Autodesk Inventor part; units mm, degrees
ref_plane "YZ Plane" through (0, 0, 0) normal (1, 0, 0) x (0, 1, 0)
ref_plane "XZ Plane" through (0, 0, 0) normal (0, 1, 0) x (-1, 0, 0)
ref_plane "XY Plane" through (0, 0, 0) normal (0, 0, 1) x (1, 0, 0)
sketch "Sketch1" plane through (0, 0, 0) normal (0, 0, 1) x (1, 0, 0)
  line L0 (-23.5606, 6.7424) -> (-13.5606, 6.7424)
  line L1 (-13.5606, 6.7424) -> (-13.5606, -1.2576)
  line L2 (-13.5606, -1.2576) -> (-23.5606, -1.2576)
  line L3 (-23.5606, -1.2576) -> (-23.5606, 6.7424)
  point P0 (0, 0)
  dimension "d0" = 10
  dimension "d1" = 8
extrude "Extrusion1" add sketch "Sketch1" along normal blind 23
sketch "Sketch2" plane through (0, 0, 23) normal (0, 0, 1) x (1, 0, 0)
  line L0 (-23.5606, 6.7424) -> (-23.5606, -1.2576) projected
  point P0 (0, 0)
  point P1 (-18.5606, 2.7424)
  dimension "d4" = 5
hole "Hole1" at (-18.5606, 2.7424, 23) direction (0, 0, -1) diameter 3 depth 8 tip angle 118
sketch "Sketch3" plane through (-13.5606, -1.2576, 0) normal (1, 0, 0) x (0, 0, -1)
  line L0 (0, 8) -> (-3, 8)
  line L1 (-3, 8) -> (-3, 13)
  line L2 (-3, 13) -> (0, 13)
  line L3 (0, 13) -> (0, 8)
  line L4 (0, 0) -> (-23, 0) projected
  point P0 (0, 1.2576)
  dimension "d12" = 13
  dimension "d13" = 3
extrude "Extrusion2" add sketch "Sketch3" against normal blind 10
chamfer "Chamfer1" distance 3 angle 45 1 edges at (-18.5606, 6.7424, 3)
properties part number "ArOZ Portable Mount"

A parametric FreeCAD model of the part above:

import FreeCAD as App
import Part
import Sketcher
from FreeCAD import Vector
Q = App.Units.Quantity


def edges_at(feature, points):
    """Names of the edges that pass closest to the given points."""
    edges = feature.Shape.Edges
    near = lambda p: min(range(len(edges)), key=lambda i: edges[i].distToShape(Part.Vertex(*p))[0])
    return sorted({f"Edge{near(p) + 1}" for p in points})

doc = App.newDocument("Part")
body = doc.addObject("PartDesign::Body", "Body")

# Sketch on XY plane
sketch1 = body.newObject("Sketcher::SketchObject", "Sketch")
sketch1.AttachmentSupport = (doc.getObject("XY_Plane"), [""])
sketch1.MapMode = "FlatFace"
sketch1.addGeometry(Part.LineSegment(Vector(-14, 7, 0), Vector(-24, 7, 0)), False)
sketch1.addGeometry(Part.LineSegment(Vector(-24, 7, 0), Vector(-24, -1, 0)), False)
sketch1.addGeometry(Part.LineSegment(Vector(-24, -1, 0), Vector(-14, -1, 0)), False)
sketch1.addGeometry(Part.LineSegment(Vector(-14, -1, 0), Vector(-14, 7, 0)), False)
sketch1.addConstraint(Sketcher.Constraint("Coincident", 0, 2, 1, 1))
sketch1.addConstraint(Sketcher.Constraint("Coincident", 1, 2, 2, 1))
sketch1.addConstraint(Sketcher.Constraint("Coincident", 2, 2, 3, 1))
sketch1.addConstraint(Sketcher.Constraint("Coincident", 3, 2, 0, 1))
sketch1.addConstraint(Sketcher.Constraint("Horizontal", 0))
sketch1.addConstraint(Sketcher.Constraint("Vertical", 1))
sketch1.addConstraint(Sketcher.Constraint("Horizontal", 2))
sketch1.addConstraint(Sketcher.Constraint("Vertical", 3))
sketch1.addConstraint(Sketcher.Constraint("DistanceX", 0, 2, 0, 1, Q("10 mm")))
sketch1.addConstraint(Sketcher.Constraint("DistanceY", 1, 2, 1, 1, Q("8 mm")))
sketch1.addConstraint(Sketcher.Constraint("DistanceX", 0, 2, -1, 1, Q("23.5606 mm")))
sketch1.addConstraint(Sketcher.Constraint("DistanceY", -1, 1, 0, 2, Q("6.7424 mm")))
pad1 = body.newObject("PartDesign::Pad", "Pad")
pad1.Profile = sketch1
pad1.Length = 23

# Sketch on XY plane
sketch2 = body.newObject("Sketcher::SketchObject", "Sketch001")
sketch2.AttachmentSupport = (doc.getObject("XY_Plane"), [""])
sketch2.MapMode = "FlatFace"
sketch2.AttachmentOffset = App.Placement(Vector(0, 0, 23), App.Rotation())
sketch2.addGeometry(Part.Circle(Vector(-18.6, 2.7, 0), Vector(0, 0, 1), 1.5), False)
sketch2.addConstraint(Sketcher.Constraint("Diameter", 0, Q("3 mm")))
sketch2.addConstraint(Sketcher.Constraint("DistanceX", 0, 3, -1, 1, Q("18.5606 mm")))
sketch2.addConstraint(Sketcher.Constraint("DistanceY", -1, 1, 0, 3, Q("2.7424 mm")))
doc.recompute()
hole = body.newObject("PartDesign::Hole", "Hole")
hole.Profile = sketch2
hole.ThreadType = "None"
hole.Diameter = 3
hole.DepthType = "Dimension"
hole.Depth = 8
hole.DrillPoint = "Angled"
hole.DrillPointAngle = 118

# Sketch on YZ plane
sketch3 = body.newObject("Sketcher::SketchObject", "Sketch002")
sketch3.AttachmentSupport = (doc.getObject("YZ_Plane"), [""])
sketch3.MapMode = "FlatFace"
sketch3.AttachmentOffset = App.Placement(Vector(0, 0, -13.5606), App.Rotation())
sketch3.addGeometry(Part.LineSegment(Vector(6.7, 3, 0), Vector(6.7, 0, 0)), False)
sketch3.addGeometry(Part.LineSegment(Vector(6.7, 0, 0), Vector(11.7, 0, 0)), False)
sketch3.addGeometry(Part.LineSegment(Vector(11.7, 0, 0), Vector(11.7, 3, 0)), False)
sketch3.addGeometry(Part.LineSegment(Vector(11.7, 3, 0), Vector(6.7, 3, 0)), False)
sketch3.addConstraint(Sketcher.Constraint("Coincident", 0, 2, 1, 1))
sketch3.addConstraint(Sketcher.Constraint("Coincident", 1, 2, 2, 1))
sketch3.addConstraint(Sketcher.Constraint("Coincident", 2, 2, 3, 1))
sketch3.addConstraint(Sketcher.Constraint("Coincident", 3, 2, 0, 1))
sketch3.addConstraint(Sketcher.Constraint("Vertical", 0))
sketch3.addConstraint(Sketcher.Constraint("Horizontal", 1))
sketch3.addConstraint(Sketcher.Constraint("Vertical", 2))
sketch3.addConstraint(Sketcher.Constraint("Horizontal", 3))
sketch3.addConstraint(Sketcher.Constraint("PointOnObject", 0, 2, -1))
sketch3.addConstraint(Sketcher.Constraint("DistanceY", 0, 2, 0, 1, Q("3 mm")))
sketch3.addConstraint(Sketcher.Constraint("DistanceX", 1, 1, 1, 2, Q("5 mm")))
sketch3.addConstraint(Sketcher.Constraint("DistanceX", -1, 1, 0, 2, Q("6.7424 mm")))
pad2 = body.newObject("PartDesign::Pad", "Pad001")
pad2.Profile = sketch3
pad2.Length = 10
pad2.Reversed = True
doc.recompute()

chamfer = body.newObject("PartDesign::Chamfer", "Chamfer")
chamfer.Base = (pad2, edges_at(pad2, [(-18.561, 6.742, 3)]))
chamfer.Size = 3

doc.recompute()
